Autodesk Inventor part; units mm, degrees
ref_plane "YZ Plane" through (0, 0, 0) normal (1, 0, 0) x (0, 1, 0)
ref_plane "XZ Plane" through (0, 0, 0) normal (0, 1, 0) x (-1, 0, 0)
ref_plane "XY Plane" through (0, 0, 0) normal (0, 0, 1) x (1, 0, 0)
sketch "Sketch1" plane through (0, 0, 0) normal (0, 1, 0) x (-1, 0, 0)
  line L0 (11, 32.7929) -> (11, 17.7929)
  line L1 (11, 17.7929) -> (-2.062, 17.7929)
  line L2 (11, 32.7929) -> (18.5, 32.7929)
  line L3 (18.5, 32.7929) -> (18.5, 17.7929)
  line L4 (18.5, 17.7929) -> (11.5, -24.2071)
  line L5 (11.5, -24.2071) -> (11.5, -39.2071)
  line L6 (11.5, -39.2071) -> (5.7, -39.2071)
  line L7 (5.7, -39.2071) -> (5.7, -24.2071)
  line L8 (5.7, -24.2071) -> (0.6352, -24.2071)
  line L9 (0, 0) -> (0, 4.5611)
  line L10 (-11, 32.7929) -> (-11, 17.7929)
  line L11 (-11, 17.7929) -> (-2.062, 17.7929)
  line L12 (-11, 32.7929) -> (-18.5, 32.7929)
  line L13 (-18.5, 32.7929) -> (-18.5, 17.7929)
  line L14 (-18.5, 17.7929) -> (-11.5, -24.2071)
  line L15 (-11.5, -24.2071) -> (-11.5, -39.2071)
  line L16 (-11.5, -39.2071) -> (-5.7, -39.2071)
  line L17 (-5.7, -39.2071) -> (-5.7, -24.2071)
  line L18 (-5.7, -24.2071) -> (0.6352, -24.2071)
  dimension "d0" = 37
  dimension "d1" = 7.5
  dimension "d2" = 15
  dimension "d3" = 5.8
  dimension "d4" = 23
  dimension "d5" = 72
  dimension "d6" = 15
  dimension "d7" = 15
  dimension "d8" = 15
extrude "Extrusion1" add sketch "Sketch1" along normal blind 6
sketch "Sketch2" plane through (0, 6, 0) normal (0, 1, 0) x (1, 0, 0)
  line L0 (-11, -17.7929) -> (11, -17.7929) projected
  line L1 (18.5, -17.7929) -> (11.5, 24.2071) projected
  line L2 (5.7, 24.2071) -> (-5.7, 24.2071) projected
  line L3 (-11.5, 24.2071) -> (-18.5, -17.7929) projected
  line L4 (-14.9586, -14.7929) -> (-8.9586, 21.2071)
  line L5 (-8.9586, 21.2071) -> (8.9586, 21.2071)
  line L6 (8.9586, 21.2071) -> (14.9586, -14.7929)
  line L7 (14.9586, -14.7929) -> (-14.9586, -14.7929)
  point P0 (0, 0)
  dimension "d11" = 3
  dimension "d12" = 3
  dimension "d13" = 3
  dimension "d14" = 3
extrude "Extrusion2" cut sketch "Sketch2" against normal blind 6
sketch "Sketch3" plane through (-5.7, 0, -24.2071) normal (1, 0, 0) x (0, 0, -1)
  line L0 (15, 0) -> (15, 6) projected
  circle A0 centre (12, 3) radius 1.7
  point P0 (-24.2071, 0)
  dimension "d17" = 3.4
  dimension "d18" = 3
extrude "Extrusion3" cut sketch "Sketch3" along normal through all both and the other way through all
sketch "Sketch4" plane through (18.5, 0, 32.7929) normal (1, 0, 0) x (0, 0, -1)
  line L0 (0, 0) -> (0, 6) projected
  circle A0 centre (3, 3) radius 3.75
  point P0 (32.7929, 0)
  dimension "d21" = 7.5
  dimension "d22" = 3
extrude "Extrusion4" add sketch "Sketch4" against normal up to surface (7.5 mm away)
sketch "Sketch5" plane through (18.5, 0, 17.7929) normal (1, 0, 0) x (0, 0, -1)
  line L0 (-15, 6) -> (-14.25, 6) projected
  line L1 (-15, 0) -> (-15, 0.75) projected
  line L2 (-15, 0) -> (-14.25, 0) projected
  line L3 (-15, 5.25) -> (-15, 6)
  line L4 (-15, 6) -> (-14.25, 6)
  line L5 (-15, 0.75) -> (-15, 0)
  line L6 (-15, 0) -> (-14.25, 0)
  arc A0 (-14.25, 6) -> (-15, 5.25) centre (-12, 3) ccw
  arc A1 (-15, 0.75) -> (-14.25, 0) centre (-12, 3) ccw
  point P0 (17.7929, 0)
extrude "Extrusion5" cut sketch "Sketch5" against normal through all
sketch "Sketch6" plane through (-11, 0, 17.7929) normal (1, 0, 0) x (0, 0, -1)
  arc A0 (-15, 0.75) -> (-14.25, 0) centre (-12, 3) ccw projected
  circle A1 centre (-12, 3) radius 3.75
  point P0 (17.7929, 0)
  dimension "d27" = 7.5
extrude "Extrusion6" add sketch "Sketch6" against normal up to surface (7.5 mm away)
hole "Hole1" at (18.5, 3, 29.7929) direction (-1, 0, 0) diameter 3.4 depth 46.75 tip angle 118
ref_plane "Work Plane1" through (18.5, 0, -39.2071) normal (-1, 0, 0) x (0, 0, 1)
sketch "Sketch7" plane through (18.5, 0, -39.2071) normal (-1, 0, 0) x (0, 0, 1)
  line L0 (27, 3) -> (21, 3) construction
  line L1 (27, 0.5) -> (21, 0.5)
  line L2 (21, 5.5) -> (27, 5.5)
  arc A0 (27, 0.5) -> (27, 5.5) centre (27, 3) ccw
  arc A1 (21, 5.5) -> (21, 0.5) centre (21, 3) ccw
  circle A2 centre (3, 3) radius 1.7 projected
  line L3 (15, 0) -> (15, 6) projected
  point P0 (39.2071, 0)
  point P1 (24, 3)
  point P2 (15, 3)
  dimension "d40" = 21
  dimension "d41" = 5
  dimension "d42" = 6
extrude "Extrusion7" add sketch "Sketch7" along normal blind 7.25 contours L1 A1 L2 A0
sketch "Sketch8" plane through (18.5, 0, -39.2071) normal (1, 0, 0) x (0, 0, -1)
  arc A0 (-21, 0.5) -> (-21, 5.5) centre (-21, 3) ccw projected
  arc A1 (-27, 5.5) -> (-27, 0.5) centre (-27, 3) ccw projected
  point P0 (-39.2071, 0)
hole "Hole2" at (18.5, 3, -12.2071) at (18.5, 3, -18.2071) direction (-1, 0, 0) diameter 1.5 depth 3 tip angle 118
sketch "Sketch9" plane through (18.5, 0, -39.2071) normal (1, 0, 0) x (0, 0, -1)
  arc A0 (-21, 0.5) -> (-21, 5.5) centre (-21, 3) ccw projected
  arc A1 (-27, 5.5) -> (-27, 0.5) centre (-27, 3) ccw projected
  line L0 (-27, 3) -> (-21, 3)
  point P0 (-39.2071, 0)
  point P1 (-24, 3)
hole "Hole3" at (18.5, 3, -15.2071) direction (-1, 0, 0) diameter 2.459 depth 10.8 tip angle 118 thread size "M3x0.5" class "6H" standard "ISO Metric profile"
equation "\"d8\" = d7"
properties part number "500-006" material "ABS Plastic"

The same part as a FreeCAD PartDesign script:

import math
import FreeCAD as App
import Part
import Sketcher
Q = App.Units.Quantity

doc = App.newDocument("Part")
body = doc.addObject("PartDesign::Body", "Body")

sketch1 = body.newObject("Sketcher::SketchObject", "Sketch")
sketch1.AttachmentSupport = (doc.getObject("XZ_Plane"), [""])
sketch1.MapMode = "FlatFace"
sketch1.addGeometry([
    Part.LineSegment(App.Vector(-18.5, 32.7929, 0), App.Vector(-11, 32.7929, 0)),
    Part.LineSegment(App.Vector(-11, 32.7929, 0), App.Vector(-11, 17.7929, 0)),
    Part.LineSegment(App.Vector(-11, 17.7929, 0), App.Vector(11, 17.7929, 0)),
    Part.LineSegment(App.Vector(11, 17.7929, 0), App.Vector(11, 32.7929, 0)),
    Part.LineSegment(App.Vector(11, 32.7929, 0), App.Vector(18.5, 32.7929, 0)),
    Part.LineSegment(App.Vector(18.5, 32.7929, 0), App.Vector(18.5, 17.7929, 0)),
    Part.LineSegment(App.Vector(18.5, 17.7929, 0), App.Vector(11.5, -24.2071, 0)),
    Part.LineSegment(App.Vector(11.5, -24.2071, 0), App.Vector(11.5, -39.2071, 0)),
    Part.LineSegment(App.Vector(11.5, -39.2071, 0), App.Vector(5.7, -39.2071, 0)),
    Part.LineSegment(App.Vector(5.7, -39.2071, 0), App.Vector(5.7, -24.2071, 0)),
    Part.LineSegment(App.Vector(5.7, -24.2071, 0), App.Vector(-5.7, -24.2071, 0)),
    Part.LineSegment(App.Vector(-5.7, -24.2071, 0), App.Vector(-5.7, -39.2071, 0)),
    Part.LineSegment(App.Vector(-5.7, -39.2071, 0), App.Vector(-11.5, -39.2071, 0)),
    Part.LineSegment(App.Vector(-11.5, -39.2071, 0), App.Vector(-11.5, -24.2071, 0)),
    Part.LineSegment(App.Vector(-11.5, -24.2071, 0), App.Vector(-18.5, 17.7929, 0)),
    Part.LineSegment(App.Vector(-18.5, 17.7929, 0), App.Vector(-18.5, 32.7929, 0)),
], False)
sketch1.addConstraint([
    Sketcher.Constraint("Coincident", 0, 2, 1, 1),
    Sketcher.Constraint("Coincident", 1, 2, 2, 1),
    Sketcher.Constraint("Coincident", 2, 2, 3, 1),
    Sketcher.Constraint("Coincident", 3, 2, 4, 1),
    Sketcher.Constraint("Coincident", 4, 2, 5, 1),
    Sketcher.Constraint("Coincident", 5, 2, 6, 1),
    Sketcher.Constraint("Coincident", 6, 2, 7, 1),
    Sketcher.Constraint("Coincident", 7, 2, 8, 1),
    Sketcher.Constraint("Coincident", 8, 2, 9, 1),
    Sketcher.Constraint("Coincident", 9, 2, 10, 1),
    Sketcher.Constraint("Coincident", 10, 2, 11, 1),
    Sketcher.Constraint("Coincident", 11, 2, 12, 1),
    Sketcher.Constraint("Coincident", 12, 2, 13, 1),
    Sketcher.Constraint("Coincident", 13, 2, 14, 1),
    Sketcher.Constraint("Coincident", 14, 2, 15, 1),
    Sketcher.Constraint("Coincident", 15, 2, 0, 1),
    Sketcher.Constraint("Horizontal", 0),
    Sketcher.Constraint("Vertical", 1),
    Sketcher.Constraint("Horizontal", 2),
    Sketcher.Constraint("Vertical", 3),
    Sketcher.Constraint("Horizontal", 4),
    Sketcher.Constraint("Vertical", 5),
    Sketcher.Constraint("Vertical", 7),
    Sketcher.Constraint("Horizontal", 8),
    Sketcher.Constraint("Vertical", 9),
    Sketcher.Constraint("Horizontal", 10),
    Sketcher.Constraint("Vertical", 11),
    Sketcher.Constraint("Horizontal", 12),
    Sketcher.Constraint("Vertical", 13),
    Sketcher.Constraint("Vertical", 15),
    Sketcher.Constraint("Symmetric", 0, 2, 3, 2, -2),
    Sketcher.Constraint("Symmetric", 8, 2, 11, 2, -2),
    Sketcher.Constraint("Symmetric", 6, 2, 13, 2, -2),
    Sketcher.Constraint("Symmetric", 5, 2, 14, 2, -2),
    Sketcher.Constraint("Horizontal", 2, 2, 5, 2),
    Sketcher.Constraint("Horizontal", 6, 2, 9, 2),
    Sketcher.Constraint("Equal", 5, 7),
    Sketcher.Constraint("DistanceY", 1, 2, 1, 1, Q("15 mm")),
    Sketcher.Constraint("DistanceX", 0, 1, 0, 2, Q("7.5 mm")),
    Sketcher.Constraint("DistanceX", 8, 2, 8, 1, Q("5.8 mm")),
    Sketcher.Constraint("DistanceY", 7, 2, 3, 2, Q("72 mm")),
    Sketcher.Constraint("DistanceX", 12, 2, 7, 2, Q("23 mm")),
    Sketcher.Constraint("DistanceX", 14, 2, 5, 2, Q("37 mm")),
    Sketcher.Constraint("DistanceY", -1, 1, 0, 2, Q("32.793 mm")),
])
pad1 = body.newObject("PartDesign::Pad", "Pad")
pad1.Profile = sketch1
pad1.Length = 6
pad1.Reversed = True

sketch2 = body.newObject("Sketcher::SketchObject", "Sketch001")
sketch2.AttachmentSupport = (doc.getObject("XZ_Plane"), [""])
sketch2.MapMode = "FlatFace"
sketch2.AttachmentOffset = App.Placement(App.Vector(0, 0, -6), App.Rotation())
sketch2.addGeometry([
    Part.LineSegment(App.Vector(-8.9586, -21.2071, 0), App.Vector(-14.9586, 14.7929, 0)),
    Part.LineSegment(App.Vector(-14.9586, 14.7929, 0), App.Vector(14.9586, 14.7929, 0)),
    Part.LineSegment(App.Vector(14.9586, 14.7929, 0), App.Vector(8.9586, -21.2071, 0)),
    Part.LineSegment(App.Vector(8.9586, -21.2071, 0), App.Vector(-8.9586, -21.2071, 0)),
], False)
sketch2.addConstraint([
    Sketcher.Constraint("Coincident", 0, 2, 1, 1),
    Sketcher.Constraint("Coincident", 1, 2, 2, 1),
    Sketcher.Constraint("Coincident", 2, 2, 3, 1),
    Sketcher.Constraint("Coincident", 3, 2, 0, 1),
    Sketcher.Constraint("Horizontal", 1),
    Sketcher.Constraint("Horizontal", 3),
    Sketcher.Constraint("Equal", 0, 2),
    Sketcher.Constraint("DistanceX", 2, 2, 1, 2, Q("6 mm")),
    Sketcher.Constraint("DistanceY", 2, 2, 1, 2, Q("36 mm")),
    Sketcher.Constraint("DistanceX", 1, 1, 1, 2, Q("29.9172 mm")),
    Sketcher.Constraint("DistanceY", -1, 1, 0, 2, Q("14.793 mm")),
    Sketcher.Constraint("DistanceX", 0, 2, -1, 1, Q("14.9586 mm")),
])
pocket1 = body.newObject("PartDesign::Pocket", "Pocket")
pocket1.Profile = sketch2
pocket1.Length = 6
pocket1.Reversed = True

sketch3 = body.newObject("Sketcher::SketchObject", "Sketch002")
sketch3.AttachmentSupport = (doc.getObject("YZ_Plane"), [""])
sketch3.MapMode = "FlatFace"
sketch3.AttachmentOffset = App.Placement(App.Vector(0, 0, -5.7), App.Rotation())
sketch3.addGeometry(Part.Circle(App.Vector(3, -36.2071, 0), App.Vector(0, 0, 1), 1.7), False)
sketch3.addConstraint([
    Sketcher.Constraint("Diameter", 0, Q("3.4 mm")),
    Sketcher.Constraint("DistanceX", -1, 1, 0, 3, Q("3 mm")),
    Sketcher.Constraint("DistanceY", 0, 3, -1, 1, Q("36.207 mm")),
])
pocket2 = body.newObject("PartDesign::Pocket", "Pocket001")
pocket2.Profile = sketch3
pocket2.Type = "ThroughAll"
pocket2.Midplane = True

sketch4 = body.newObject("Sketcher::SketchObject", "Sketch003")
sketch4.AttachmentSupport = (doc.getObject("YZ_Plane"), [""])
sketch4.MapMode = "FlatFace"
sketch4.AttachmentOffset = App.Placement(App.Vector(0, 0, 18.5), App.Rotation())
sketch4.addGeometry(Part.Circle(App.Vector(3, 29.7929, 0), App.Vector(0, 0, 1), 3.75), False)
sketch4.addConstraint([
    Sketcher.Constraint("Diameter", 0, Q("7.5 mm")),
    Sketcher.Constraint("DistanceX", -1, 1, 0, 3, Q("3 mm")),
    Sketcher.Constraint("DistanceY", -1, 1, 0, 3, Q("29.793 mm")),
])
pad2 = body.newObject("PartDesign::Pad", "Pad001")
pad2.Profile = sketch4
pad2.Length = 7.5
pad2.Reversed = True

sketch5 = body.newObject("Sketcher::SketchObject", "Sketch004")
sketch5.AttachmentSupport = (doc.getObject("YZ_Plane"), [""])
sketch5.MapMode = "FlatFace"
sketch5.AttachmentOffset = App.Placement(App.Vector(0, 0, 18.5), App.Rotation())
sketch5.addGeometry([
    Part.LineSegment(App.Vector(6, 32.0429, 0), App.Vector(6, 32.7929, 0)),
    Part.LineSegment(App.Vector(6, 32.7929, 0), App.Vector(5.25, 32.7929, 0)),
    Part.ArcOfCircle(Part.Circle(App.Vector(3, 29.7929, 0), App.Vector(0, 0, 1), 3.75), math.radians(36.869898), math.radians(53.130102)),
    Part.LineSegment(App.Vector(0.75, 32.7929, 0), App.Vector(0, 32.7929, 0)),
    Part.LineSegment(App.Vector(0, 32.7929, 0), App.Vector(0, 32.0429, 0)),
    Part.ArcOfCircle(Part.Circle(App.Vector(3, 29.7929, 0), App.Vector(0, 0, 1), 3.75), math.radians(126.869898), math.radians(143.130102)),
], False)
sketch5.addConstraint([
    Sketcher.Constraint("Coincident", 0, 2, 1, 1),
    Sketcher.Constraint("Coincident", 1, 2, 2, 2),
    Sketcher.Constraint("Coincident", 2, 1, 0, 1),
    Sketcher.Constraint("Coincident", 3, 2, 4, 1),
    Sketcher.Constraint("Coincident", 4, 2, 5, 2),
    Sketcher.Constraint("Coincident", 5, 1, 3, 1),
    Sketcher.Constraint("Vertical", 0),
    Sketcher.Constraint("Horizontal", 1),
    Sketcher.Constraint("Horizontal", 3),
    Sketcher.Constraint("Vertical", 4),
    Sketcher.Constraint("Coincident", 5, 3, 2, 3),
    Sketcher.Constraint("Equal", 2, 5),
    Sketcher.Constraint("PointOnObject", 3, 2, -2),
    Sketcher.Constraint("Horizontal", 1, 2, 3, 2),
    Sketcher.Constraint("Horizontal", 2, 1, 4, 2),
    Sketcher.Constraint("Equal", 3, 0),
    Sketcher.Constraint("Radius", 2, Q("3.75 mm")),
    Sketcher.Constraint("DistanceX", -1, 1, 2, 3, Q("3 mm")),
    Sketcher.Constraint("DistanceY", -1, 1, 2, 3, Q("29.793 mm")),
])
pocket3 = body.newObject("PartDesign::Pocket", "Pocket002")
pocket3.Profile = sketch5
pocket3.Type = "ThroughAll"

sketch6 = body.newObject("Sketcher::SketchObject", "Sketch005")
sketch6.AttachmentSupport = (doc.getObject("YZ_Plane"), [""])
sketch6.MapMode = "FlatFace"
sketch6.AttachmentOffset = App.Placement(App.Vector(0, 0, -11), App.Rotation())
sketch6.addGeometry(Part.Circle(App.Vector(3, 29.7929, 0), App.Vector(0, 0, 1), 3.75), False)
sketch6.addConstraint([
    Sketcher.Constraint("Diameter", 0, Q("7.5 mm")),
    Sketcher.Constraint("DistanceX", -1, 1, 0, 3, Q("3 mm")),
    Sketcher.Constraint("DistanceY", -1, 1, 0, 3, Q("29.793 mm")),
])
pad3 = body.newObject("PartDesign::Pad", "Pad002")
pad3.Profile = sketch6
pad3.Length = 7.5
pad3.Reversed = True

sketch7 = body.newObject("Sketcher::SketchObject", "Sketch006")
sketch7.AttachmentSupport = (doc.getObject("YZ_Plane"), [""])
sketch7.MapMode = "FlatFace"
sketch7.AttachmentOffset = App.Placement(App.Vector(0, 0, 18.5), App.Rotation())
sketch7.addGeometry(Part.Circle(App.Vector(3, 29.7929, 0), App.Vector(0, 0, 1), 1.7), False)
sketch7.addConstraint([
    Sketcher.Constraint("Diameter", 0, Q("3.4 mm")),
    Sketcher.Constraint("DistanceX", -1, 1, 0, 3, Q("3 mm")),
    Sketcher.Constraint("DistanceY", -1, 1, 0, 3, Q("29.793 mm")),
])
doc.recompute()
hole = body.newObject("PartDesign::Hole", "Hole")
hole.Profile = sketch7
hole.ThreadType = "None"
hole.Diameter = 3.4
hole.DepthType = "Dimension"
hole.Depth = 46.75
hole.DrillPoint = "Angled"
hole.DrillPointAngle = 118

sketch8 = body.newObject("Sketcher::SketchObject", "Sketch007")
sketch8.AttachmentSupport = (doc.getObject("YZ_Plane"), [""])
sketch8.MapMode = "FlatFace"
sketch8.AttachmentOffset = App.Placement(App.Vector(0, 0, 18.5), App.Rotation())
sketch8.addGeometry([
    Part.LineSegment(App.Vector(0.5, -18.2071, 0), App.Vector(0.5, -12.2071, 0)),
    Part.ArcOfCircle(Part.Circle(App.Vector(3, -12.2071, 0), App.Vector(0, 0, 1), 2.5), math.radians(0), math.radians(180)),
    Part.LineSegment(App.Vector(5.5, -12.2071, 0), App.Vector(5.5, -18.2071, 0)),
    Part.ArcOfCircle(Part.Circle(App.Vector(3, -18.2071, 0), App.Vector(0, 0, 1), 2.5), math.radians(180), math.radians(360)),
], False)
sketch8.addConstraint([
    Sketcher.Constraint("Tangent", 0, 2, 1, 2),
    Sketcher.Constraint("Tangent", 1, 1, 2, 1),
    Sketcher.Constraint("Tangent", 2, 2, 3, 2),
    Sketcher.Constraint("Tangent", 3, 1, 0, 1),
    Sketcher.Constraint("Vertical", 0),
    Sketcher.Constraint("Vertical", 2),
    Sketcher.Constraint("Radius", 1, Q("2.5 mm")),
    Sketcher.Constraint("DistanceY", 0, 1, 0, 2, Q("6 mm")),
    Sketcher.Constraint("DistanceX", -1, 1, 1, 3, Q("3 mm")),
    Sketcher.Constraint("DistanceY", 1, 3, -1, 1, Q("12.207 mm")),
])
pad4 = body.newObject("PartDesign::Pad", "Pad003")
pad4.Profile = sketch8
pad4.Length = 7.25
pad4.Reversed = True

sketch9 = body.newObject("Sketcher::SketchObject", "Sketch008")
sketch9.AttachmentSupport = (doc.getObject("YZ_Plane"), [""])
sketch9.MapMode = "FlatFace"
sketch9.AttachmentOffset = App.Placement(App.Vector(0, 0, 18.5), App.Rotation())
sketch9.addGeometry([
    Part.Circle(App.Vector(3, -12.2071, 0), App.Vector(0, 0, 1), 0.75),
    Part.Circle(App.Vector(3, -18.2071, 0), App.Vector(0, 0, 1), 0.75),
], False)
sketch9.addConstraint([
    Sketcher.Constraint("Equal", 0, 1),
    Sketcher.Constraint("Vertical", 0, 3, 1, 3),
    Sketcher.Constraint("Diameter", 0, Q("1.5 mm")),
    Sketcher.Constraint("DistanceX", -1, 1, 0, 3, Q("3 mm")),
    Sketcher.Constraint("DistanceY", 1, 3, 0, 3, Q("6 mm")),
    Sketcher.Constraint("DistanceY", 0, 3, -1, 1, Q("12.207 mm")),
])
doc.recompute()
hole2 = body.newObject("PartDesign::Hole", "Hole001")
hole2.Profile = sketch9
hole2.ThreadType = "None"
hole2.Diameter = 1.5
hole2.DepthType = "Dimension"
hole2.Depth = 3
hole2.DrillPoint = "Angled"
hole2.DrillPointAngle = 118

sketch10 = body.newObject("Sketcher::SketchObject", "Sketch009")
sketch10.AttachmentSupport = (doc.getObject("YZ_Plane"), [""])
sketch10.MapMode = "FlatFace"
sketch10.AttachmentOffset = App.Placement(App.Vector(0, 0, 18.5), App.Rotation())
sketch10.addGeometry(Part.Circle(App.Vector(3, -15.2071, 0), App.Vector(0, 0, 1), 1.2295), False)
sketch10.addConstraint([
    Sketcher.Constraint("Diameter", 0, Q("2.459 mm")),
    Sketcher.Constraint("DistanceX", -1, 1, 0, 3, Q("3 mm")),
    Sketcher.Constraint("DistanceY", 0, 3, -1, 1, Q("15.207 mm")),
])
doc.recompute()
hole3 = body.newObject("PartDesign::Hole", "Hole002")
hole3.Profile = sketch10
hole3.ThreadType = "None"
hole3.Diameter = 2.459
hole3.DepthType = "Dimension"
hole3.Depth = 10.8
hole3.DrillPoint = "Angled"
hole3.DrillPointAngle = 118

doc.recompute()
